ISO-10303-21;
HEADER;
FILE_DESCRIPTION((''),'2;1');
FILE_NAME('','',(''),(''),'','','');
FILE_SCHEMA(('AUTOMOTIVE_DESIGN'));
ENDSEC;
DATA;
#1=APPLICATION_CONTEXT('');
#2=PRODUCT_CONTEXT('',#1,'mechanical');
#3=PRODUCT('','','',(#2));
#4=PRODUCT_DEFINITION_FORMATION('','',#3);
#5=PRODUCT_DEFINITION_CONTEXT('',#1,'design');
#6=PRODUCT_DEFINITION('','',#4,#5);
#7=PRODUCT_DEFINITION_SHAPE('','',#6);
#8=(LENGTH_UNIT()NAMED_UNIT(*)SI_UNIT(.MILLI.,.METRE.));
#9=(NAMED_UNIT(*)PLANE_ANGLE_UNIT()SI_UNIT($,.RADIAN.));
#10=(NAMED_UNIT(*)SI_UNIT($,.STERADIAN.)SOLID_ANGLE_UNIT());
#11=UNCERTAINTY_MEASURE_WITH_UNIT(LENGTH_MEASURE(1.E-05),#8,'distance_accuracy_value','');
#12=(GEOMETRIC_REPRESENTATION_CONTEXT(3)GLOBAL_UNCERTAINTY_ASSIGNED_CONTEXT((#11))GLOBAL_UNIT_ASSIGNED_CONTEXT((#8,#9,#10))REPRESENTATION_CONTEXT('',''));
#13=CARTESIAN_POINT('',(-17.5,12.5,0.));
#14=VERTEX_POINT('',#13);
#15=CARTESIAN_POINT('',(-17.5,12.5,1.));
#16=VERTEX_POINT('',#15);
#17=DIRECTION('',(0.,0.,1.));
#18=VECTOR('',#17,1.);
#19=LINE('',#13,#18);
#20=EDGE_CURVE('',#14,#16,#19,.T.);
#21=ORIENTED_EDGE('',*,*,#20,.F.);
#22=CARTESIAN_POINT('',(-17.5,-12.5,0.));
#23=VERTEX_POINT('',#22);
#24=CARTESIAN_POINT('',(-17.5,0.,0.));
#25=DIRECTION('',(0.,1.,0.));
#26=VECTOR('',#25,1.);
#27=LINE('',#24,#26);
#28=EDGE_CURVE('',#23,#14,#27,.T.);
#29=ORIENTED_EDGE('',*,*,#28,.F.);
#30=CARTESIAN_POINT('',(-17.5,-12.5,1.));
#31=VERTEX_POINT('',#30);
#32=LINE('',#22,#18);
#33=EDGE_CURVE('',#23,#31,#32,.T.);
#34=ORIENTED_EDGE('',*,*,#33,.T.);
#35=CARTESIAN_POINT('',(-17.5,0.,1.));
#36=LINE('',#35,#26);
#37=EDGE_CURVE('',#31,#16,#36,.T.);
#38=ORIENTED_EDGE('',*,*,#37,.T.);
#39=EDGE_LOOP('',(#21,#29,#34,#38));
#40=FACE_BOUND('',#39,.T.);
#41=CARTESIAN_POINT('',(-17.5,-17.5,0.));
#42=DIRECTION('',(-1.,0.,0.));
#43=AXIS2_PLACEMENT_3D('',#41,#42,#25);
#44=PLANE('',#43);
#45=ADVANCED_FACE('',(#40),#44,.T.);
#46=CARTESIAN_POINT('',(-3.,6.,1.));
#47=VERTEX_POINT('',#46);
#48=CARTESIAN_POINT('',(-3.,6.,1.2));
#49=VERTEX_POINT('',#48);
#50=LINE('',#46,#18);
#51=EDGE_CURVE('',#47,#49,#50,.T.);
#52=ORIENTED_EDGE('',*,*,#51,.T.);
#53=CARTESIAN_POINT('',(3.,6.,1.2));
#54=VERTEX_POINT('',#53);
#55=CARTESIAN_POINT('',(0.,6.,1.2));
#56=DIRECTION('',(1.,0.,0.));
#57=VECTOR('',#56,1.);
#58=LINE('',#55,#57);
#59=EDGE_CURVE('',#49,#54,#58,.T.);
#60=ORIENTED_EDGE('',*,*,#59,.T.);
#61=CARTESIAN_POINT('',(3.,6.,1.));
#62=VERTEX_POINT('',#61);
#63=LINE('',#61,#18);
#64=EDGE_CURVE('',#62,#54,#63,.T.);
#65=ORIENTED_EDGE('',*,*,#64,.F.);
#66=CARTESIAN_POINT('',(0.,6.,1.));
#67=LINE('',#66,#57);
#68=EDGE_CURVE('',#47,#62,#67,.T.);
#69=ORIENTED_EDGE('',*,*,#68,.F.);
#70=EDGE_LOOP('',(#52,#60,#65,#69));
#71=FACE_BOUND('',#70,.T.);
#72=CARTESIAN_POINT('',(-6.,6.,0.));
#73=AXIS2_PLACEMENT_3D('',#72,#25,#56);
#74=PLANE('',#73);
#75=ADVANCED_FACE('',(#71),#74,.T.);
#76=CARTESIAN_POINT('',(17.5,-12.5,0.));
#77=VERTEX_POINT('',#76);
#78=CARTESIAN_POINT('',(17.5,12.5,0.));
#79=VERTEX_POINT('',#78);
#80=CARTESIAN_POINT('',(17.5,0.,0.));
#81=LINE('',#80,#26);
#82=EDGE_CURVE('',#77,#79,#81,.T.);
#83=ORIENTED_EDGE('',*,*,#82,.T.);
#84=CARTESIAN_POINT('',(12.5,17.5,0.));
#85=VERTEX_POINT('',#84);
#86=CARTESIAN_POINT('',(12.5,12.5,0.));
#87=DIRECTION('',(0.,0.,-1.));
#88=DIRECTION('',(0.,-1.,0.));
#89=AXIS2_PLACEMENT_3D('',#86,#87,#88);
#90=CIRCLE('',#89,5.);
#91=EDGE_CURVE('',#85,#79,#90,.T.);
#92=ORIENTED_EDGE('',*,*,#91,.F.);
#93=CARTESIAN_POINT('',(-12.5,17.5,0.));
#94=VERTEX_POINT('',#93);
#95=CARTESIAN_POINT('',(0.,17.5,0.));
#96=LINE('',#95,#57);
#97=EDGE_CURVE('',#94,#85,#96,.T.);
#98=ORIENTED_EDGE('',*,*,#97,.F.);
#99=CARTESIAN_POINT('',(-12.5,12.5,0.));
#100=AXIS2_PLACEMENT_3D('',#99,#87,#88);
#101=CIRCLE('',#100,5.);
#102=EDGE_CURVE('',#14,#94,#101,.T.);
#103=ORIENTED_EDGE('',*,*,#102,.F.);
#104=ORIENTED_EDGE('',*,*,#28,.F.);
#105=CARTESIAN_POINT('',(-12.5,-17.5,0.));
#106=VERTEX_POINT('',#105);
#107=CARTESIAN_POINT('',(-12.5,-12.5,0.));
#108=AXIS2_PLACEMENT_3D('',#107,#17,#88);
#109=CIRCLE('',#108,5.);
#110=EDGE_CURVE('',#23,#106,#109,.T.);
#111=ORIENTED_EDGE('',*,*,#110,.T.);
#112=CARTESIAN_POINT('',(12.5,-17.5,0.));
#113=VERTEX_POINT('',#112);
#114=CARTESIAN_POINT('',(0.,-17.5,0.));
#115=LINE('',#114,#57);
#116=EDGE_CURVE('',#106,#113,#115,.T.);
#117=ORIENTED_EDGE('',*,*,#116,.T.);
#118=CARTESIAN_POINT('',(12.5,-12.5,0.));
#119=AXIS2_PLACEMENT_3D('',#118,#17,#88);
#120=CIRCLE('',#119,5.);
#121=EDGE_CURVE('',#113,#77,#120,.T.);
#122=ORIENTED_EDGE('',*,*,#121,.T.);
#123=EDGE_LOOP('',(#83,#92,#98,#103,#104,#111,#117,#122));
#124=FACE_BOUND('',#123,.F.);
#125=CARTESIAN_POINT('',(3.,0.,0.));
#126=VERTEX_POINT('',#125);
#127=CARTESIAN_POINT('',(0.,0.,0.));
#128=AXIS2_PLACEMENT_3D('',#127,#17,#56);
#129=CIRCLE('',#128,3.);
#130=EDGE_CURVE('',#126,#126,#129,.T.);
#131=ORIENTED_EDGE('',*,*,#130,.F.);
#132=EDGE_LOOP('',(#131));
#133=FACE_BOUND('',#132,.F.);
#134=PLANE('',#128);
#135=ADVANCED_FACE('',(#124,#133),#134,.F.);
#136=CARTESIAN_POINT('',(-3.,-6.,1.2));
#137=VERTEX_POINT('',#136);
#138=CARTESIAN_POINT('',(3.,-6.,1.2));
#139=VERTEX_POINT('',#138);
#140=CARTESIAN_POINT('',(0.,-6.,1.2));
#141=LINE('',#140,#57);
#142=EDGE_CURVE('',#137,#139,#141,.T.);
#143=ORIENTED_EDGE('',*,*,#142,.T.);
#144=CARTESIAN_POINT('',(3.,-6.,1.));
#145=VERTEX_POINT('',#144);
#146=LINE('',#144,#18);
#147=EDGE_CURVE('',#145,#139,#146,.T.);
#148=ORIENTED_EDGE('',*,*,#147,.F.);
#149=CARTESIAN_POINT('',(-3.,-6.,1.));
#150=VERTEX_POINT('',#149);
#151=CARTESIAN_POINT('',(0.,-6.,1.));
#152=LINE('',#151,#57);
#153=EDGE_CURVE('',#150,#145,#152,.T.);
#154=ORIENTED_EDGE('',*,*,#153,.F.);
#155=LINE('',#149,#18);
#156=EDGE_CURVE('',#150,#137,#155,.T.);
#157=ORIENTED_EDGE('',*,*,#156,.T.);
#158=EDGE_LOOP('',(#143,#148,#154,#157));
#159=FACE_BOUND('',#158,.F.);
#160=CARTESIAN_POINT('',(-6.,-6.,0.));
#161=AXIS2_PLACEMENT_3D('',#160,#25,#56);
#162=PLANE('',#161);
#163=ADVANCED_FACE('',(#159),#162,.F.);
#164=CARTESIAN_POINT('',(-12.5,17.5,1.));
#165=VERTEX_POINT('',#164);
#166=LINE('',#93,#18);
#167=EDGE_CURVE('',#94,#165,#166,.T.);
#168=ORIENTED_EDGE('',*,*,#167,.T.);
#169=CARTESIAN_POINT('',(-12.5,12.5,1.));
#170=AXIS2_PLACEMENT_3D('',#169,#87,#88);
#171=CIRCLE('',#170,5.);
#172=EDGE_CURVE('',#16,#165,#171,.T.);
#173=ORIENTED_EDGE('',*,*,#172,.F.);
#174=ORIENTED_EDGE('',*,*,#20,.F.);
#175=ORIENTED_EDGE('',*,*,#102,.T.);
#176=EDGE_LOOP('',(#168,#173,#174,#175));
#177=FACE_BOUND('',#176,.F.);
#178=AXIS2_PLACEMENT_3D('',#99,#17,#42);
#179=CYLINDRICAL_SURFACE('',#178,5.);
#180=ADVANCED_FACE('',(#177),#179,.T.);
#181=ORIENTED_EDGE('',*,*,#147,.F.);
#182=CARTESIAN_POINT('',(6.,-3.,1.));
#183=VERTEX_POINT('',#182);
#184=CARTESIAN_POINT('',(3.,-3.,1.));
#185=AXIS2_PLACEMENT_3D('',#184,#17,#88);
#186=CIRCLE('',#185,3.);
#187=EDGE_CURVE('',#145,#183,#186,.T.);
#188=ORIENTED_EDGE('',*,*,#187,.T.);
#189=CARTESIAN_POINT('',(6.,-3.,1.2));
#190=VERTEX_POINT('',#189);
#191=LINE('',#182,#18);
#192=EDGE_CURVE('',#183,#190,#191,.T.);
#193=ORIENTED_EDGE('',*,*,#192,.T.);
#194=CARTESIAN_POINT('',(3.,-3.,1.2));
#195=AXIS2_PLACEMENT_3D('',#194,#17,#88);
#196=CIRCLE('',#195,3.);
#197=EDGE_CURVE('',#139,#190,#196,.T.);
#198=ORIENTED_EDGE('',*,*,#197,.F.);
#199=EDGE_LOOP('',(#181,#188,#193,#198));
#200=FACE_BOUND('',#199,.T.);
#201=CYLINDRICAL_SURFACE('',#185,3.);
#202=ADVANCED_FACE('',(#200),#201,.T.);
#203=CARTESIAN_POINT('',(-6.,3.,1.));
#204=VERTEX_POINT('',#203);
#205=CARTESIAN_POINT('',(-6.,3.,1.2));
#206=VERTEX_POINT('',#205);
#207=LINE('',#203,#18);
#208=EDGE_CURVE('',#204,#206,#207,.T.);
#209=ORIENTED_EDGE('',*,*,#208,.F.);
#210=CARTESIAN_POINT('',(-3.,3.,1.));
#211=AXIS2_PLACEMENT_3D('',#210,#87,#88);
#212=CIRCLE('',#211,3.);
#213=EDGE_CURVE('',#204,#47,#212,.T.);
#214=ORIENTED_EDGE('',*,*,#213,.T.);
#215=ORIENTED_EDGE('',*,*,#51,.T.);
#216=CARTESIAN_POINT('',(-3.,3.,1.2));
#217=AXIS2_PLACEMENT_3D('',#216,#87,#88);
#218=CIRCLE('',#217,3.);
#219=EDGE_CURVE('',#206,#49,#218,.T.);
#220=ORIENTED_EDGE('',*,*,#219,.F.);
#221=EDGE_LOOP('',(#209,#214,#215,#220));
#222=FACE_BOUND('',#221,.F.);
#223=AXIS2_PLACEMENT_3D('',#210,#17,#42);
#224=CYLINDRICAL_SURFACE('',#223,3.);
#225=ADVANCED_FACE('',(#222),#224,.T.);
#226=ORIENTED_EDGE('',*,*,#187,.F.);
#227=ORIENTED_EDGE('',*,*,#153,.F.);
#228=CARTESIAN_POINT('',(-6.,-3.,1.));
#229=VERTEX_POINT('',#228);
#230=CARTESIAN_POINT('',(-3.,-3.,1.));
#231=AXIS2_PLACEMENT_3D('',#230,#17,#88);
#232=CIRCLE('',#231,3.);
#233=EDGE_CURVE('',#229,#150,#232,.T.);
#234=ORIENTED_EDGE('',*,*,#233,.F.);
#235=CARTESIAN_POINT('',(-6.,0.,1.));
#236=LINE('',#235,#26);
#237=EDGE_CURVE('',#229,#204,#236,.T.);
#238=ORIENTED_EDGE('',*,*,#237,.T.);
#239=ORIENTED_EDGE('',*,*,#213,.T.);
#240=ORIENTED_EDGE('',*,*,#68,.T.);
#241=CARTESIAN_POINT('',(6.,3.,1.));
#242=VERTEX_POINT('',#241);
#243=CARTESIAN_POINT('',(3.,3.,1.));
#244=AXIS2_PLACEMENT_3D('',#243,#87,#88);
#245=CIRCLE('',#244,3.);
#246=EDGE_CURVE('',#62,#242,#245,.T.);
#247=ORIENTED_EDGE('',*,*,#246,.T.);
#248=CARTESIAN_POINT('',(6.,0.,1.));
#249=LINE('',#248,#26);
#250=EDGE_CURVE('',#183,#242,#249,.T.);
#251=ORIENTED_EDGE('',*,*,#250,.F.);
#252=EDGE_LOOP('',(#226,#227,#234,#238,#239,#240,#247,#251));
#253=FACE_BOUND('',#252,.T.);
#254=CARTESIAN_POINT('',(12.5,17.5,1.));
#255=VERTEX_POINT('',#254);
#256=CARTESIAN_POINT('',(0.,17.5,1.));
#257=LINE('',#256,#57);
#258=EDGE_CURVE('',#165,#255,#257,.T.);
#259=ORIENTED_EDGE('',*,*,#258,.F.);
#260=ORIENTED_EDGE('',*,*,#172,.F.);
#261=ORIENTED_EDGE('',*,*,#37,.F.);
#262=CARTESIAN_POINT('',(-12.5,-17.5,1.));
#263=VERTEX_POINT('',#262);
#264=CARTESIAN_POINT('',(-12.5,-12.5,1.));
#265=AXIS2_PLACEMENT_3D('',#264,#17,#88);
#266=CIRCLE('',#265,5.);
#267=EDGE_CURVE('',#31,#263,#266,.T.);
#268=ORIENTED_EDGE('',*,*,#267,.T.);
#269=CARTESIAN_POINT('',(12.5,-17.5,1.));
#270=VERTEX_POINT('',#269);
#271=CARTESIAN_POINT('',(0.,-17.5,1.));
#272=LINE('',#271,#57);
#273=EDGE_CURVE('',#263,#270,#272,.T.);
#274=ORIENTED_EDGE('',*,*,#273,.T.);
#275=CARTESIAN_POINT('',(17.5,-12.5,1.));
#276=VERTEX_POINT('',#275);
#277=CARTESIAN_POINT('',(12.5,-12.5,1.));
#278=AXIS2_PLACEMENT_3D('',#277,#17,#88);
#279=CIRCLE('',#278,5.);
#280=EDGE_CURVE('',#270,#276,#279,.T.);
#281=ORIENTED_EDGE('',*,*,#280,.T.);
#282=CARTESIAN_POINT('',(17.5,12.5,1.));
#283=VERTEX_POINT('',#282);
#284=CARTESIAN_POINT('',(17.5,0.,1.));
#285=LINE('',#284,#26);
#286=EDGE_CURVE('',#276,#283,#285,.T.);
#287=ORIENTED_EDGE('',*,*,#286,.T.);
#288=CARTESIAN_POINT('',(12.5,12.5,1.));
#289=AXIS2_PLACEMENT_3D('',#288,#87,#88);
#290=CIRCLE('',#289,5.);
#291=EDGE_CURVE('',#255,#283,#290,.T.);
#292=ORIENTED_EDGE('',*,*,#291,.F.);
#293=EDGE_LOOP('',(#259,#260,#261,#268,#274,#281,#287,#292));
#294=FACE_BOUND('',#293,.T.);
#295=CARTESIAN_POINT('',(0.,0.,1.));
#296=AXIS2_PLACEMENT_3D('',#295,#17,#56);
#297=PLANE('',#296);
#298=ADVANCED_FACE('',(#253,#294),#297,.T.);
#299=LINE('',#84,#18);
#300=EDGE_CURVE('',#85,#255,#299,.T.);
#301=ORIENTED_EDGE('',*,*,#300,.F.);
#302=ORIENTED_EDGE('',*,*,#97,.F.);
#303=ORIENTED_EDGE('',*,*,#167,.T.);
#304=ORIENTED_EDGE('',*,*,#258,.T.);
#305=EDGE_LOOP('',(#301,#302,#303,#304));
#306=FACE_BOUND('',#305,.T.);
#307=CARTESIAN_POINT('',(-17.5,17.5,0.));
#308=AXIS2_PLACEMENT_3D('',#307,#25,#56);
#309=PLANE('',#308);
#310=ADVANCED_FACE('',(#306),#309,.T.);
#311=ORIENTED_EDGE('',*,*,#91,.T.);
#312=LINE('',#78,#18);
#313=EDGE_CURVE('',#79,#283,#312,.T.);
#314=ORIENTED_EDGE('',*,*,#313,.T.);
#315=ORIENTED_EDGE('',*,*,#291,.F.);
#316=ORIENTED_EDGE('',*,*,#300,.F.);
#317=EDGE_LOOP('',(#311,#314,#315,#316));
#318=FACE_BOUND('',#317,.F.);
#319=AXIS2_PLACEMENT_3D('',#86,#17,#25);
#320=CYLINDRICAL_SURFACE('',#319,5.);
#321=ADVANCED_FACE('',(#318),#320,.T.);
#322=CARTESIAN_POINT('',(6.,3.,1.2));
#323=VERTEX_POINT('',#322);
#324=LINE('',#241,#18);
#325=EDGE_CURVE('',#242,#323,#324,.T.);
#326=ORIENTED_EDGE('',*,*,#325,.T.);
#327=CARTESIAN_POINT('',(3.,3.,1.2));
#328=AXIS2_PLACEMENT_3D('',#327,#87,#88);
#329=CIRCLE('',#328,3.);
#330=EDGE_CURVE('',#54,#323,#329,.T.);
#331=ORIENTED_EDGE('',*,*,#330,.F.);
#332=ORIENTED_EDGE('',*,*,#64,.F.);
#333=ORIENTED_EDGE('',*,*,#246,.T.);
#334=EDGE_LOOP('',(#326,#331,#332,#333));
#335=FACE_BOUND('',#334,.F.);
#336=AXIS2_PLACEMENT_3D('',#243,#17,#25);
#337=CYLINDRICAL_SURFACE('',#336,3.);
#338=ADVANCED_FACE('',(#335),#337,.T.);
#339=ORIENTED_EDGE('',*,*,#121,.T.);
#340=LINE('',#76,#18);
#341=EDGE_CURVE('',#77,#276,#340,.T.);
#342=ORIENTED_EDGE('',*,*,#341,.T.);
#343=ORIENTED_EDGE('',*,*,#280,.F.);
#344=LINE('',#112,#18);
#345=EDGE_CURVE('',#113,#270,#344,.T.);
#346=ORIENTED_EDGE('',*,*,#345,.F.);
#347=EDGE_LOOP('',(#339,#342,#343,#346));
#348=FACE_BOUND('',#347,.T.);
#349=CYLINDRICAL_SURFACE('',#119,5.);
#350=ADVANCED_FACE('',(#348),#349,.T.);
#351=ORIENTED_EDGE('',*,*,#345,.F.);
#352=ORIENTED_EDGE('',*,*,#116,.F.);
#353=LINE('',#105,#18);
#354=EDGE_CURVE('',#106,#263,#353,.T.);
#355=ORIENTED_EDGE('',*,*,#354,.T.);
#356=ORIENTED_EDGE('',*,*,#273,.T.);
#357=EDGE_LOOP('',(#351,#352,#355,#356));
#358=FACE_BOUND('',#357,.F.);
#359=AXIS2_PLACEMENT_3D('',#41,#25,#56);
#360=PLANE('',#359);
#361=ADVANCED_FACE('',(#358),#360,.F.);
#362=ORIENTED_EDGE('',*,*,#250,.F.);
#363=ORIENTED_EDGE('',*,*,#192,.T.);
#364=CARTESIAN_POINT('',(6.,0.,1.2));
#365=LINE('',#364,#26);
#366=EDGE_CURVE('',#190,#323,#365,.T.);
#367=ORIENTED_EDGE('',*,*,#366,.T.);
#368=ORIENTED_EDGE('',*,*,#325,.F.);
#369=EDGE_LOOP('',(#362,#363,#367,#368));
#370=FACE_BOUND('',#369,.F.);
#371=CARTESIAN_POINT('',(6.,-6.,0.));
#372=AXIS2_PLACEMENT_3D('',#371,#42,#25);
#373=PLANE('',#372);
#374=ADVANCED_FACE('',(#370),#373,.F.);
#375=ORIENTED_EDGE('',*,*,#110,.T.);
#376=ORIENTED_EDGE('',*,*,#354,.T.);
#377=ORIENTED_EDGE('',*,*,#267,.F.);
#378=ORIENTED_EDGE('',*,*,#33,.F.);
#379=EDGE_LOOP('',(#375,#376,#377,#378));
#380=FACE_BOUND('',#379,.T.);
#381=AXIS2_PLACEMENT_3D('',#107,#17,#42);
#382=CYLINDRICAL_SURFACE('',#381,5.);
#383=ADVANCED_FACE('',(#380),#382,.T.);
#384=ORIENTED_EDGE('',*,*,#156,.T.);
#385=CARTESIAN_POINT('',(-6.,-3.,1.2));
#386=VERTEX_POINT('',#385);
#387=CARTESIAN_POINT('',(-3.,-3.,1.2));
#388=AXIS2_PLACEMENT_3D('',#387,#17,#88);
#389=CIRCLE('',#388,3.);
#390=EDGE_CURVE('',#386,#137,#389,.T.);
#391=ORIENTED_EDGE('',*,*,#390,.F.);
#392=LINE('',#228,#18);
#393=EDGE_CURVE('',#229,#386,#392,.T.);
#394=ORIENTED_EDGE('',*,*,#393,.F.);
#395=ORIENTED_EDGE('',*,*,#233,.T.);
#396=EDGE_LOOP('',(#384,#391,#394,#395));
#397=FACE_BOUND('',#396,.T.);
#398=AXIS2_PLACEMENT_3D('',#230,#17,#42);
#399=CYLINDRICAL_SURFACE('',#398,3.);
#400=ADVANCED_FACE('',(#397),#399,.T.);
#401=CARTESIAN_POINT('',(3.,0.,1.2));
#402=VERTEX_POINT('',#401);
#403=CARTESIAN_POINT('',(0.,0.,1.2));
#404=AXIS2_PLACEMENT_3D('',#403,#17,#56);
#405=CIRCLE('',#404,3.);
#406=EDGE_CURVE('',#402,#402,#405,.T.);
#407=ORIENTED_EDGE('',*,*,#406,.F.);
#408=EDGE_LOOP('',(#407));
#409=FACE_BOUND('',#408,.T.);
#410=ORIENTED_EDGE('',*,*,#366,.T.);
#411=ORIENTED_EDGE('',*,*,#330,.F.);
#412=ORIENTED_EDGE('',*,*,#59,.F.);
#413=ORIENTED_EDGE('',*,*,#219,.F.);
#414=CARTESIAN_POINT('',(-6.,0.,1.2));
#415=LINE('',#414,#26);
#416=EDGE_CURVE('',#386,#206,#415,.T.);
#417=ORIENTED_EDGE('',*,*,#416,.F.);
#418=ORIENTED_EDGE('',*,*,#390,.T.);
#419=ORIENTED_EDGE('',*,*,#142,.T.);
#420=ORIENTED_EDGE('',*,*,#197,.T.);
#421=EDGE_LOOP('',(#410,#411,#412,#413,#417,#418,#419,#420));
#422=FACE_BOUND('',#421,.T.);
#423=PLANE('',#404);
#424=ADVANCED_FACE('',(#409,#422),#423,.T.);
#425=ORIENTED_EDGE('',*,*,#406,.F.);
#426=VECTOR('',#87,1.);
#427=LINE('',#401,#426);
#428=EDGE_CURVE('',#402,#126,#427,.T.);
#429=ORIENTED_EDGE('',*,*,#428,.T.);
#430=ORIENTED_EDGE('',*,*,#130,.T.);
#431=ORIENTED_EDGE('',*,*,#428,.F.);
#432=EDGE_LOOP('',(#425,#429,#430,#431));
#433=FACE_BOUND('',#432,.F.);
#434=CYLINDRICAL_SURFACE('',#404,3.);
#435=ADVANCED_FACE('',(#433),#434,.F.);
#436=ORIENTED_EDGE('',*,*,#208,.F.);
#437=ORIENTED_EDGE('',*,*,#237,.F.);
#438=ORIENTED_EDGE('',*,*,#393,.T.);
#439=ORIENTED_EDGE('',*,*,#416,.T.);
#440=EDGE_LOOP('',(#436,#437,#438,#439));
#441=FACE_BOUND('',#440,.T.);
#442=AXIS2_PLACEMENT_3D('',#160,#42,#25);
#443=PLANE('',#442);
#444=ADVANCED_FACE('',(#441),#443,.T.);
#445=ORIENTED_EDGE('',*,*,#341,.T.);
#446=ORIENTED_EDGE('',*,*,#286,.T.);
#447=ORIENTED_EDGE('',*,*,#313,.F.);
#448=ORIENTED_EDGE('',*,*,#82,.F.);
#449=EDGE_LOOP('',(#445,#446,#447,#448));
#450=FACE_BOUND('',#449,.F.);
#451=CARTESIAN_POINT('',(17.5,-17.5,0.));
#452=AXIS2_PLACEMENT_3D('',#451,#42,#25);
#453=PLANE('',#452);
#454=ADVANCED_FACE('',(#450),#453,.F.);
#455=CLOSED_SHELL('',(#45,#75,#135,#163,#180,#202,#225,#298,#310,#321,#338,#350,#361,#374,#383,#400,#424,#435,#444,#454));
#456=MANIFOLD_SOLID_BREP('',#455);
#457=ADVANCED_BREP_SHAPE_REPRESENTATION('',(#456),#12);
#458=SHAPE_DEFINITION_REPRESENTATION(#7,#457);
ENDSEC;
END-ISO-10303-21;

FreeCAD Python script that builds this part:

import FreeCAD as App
import Part
import Sketcher


def edges_at(feature, points):
    """Names of the edges that pass closest to the given points."""
    edges = feature.Shape.Edges
    near = lambda p: min(range(len(edges)), key=lambda i: edges[i].distToShape(Part.Vertex(*p))[0])
    return sorted({f"Edge{near(p) + 1}" for p in points})

doc = App.newDocument("Part")
body = doc.addObject("PartDesign::Body", "Body")

# Sketch on XY plane
sketch1 = body.newObject("Sketcher::SketchObject", "Sketch")
sketch1.AttachmentSupport = (doc.getObject("XY_Plane"), [""])
sketch1.MapMode = "FlatFace"
sketch1.addGeometry(Part.LineSegment(App.Vector(-18, 18, 0), App.Vector(-18, -18, 0)), False)
sketch1.addGeometry(Part.LineSegment(App.Vector(-18, -18, 0), App.Vector(18, -18, 0)), False)
sketch1.addGeometry(Part.LineSegment(App.Vector(18, -18, 0), App.Vector(18, 18, 0)), False)
sketch1.addGeometry(Part.LineSegment(App.Vector(18, 18, 0), App.Vector(-18, 18, 0)), False)
sketch1.addGeometry(Part.LineSegment(App.Vector(6, -6, 0), App.Vector(-6, -6, 0)), False)
sketch1.addGeometry(Part.LineSegment(App.Vector(-6, -6, 0), App.Vector(-6, 6, 0)), False)
sketch1.addGeometry(Part.LineSegment(App.Vector(-6, 6, 0), App.Vector(6, 6, 0)), False)
sketch1.addGeometry(Part.LineSegment(App.Vector(6, 6, 0), App.Vector(6, -6, 0)), False)
sketch1.addConstraint(Sketcher.Constraint("Coincident", 0, 2, 1, 1))
sketch1.addConstraint(Sketcher.Constraint("Coincident", 1, 2, 2, 1))
sketch1.addConstraint(Sketcher.Constraint("Coincident", 2, 2, 3, 1))
sketch1.addConstraint(Sketcher.Constraint("Coincident", 3, 2, 0, 1))
sketch1.addConstraint(Sketcher.Constraint("Coincident", 4, 2, 5, 1))
sketch1.addConstraint(Sketcher.Constraint("Coincident", 5, 2, 6, 1))
sketch1.addConstraint(Sketcher.Constraint("Coincident", 6, 2, 7, 1))
sketch1.addConstraint(Sketcher.Constraint("Coincident", 7, 2, 4, 1))
sketch1.addConstraint(Sketcher.Constraint("Vertical", 0))
sketch1.addConstraint(Sketcher.Constraint("Horizontal", 1))
sketch1.addConstraint(Sketcher.Constraint("Vertical", 2))
sketch1.addConstraint(Sketcher.Constraint("Horizontal", 3))
sketch1.addConstraint(Sketcher.Constraint("Horizontal", 4))
sketch1.addConstraint(Sketcher.Constraint("Vertical", 5))
sketch1.addConstraint(Sketcher.Constraint("Horizontal", 6))
sketch1.addConstraint(Sketcher.Constraint("Vertical", 7))
sketch1.addConstraint(Sketcher.Constraint("Symmetric", 0, 2, 2, 2, -1, 1))
sketch1.addConstraint(Sketcher.Constraint("Symmetric", 4, 2, 6, 2, -1, 1))
sketch1.addConstraint(Sketcher.Constraint("Equal", 3, 0))
sketch1.addConstraint(Sketcher.Constraint("Equal", 6, 5))
sketch1.addConstraint(Sketcher.Constraint("DistanceX", 1, 1, 1, 2, 35.0))
sketch1.addConstraint(Sketcher.Constraint("DistanceX", 4, 2, 4, 1, 12.0))
pad1 = body.newObject("PartDesign::Pad", "Pad")
pad1.Profile = sketch1
pad1.Length = 1

# Sketch on XY plane
sketch2 = body.newObject("Sketcher::SketchObject", "Sketch001")
sketch2.AttachmentSupport = (doc.getObject("XY_Plane"), [""])
sketch2.MapMode = "FlatFace"
sketch2.addGeometry(Part.LineSegment(App.Vector(-6, 6, 0), App.Vector(-6, -6, 0)), False)
sketch2.addGeometry(Part.LineSegment(App.Vector(-6, -6, 0), App.Vector(6, -6, 0)), False)
sketch2.addGeometry(Part.LineSegment(App.Vector(6, -6, 0), App.Vector(6, 6, 0)), False)
sketch2.addGeometry(Part.LineSegment(App.Vector(6, 6, 0), App.Vector(-6, 6, 0)), False)
sketch2.addConstraint(Sketcher.Constraint("Coincident", 0, 2, 1, 1))
sketch2.addConstraint(Sketcher.Constraint("Coincident", 1, 2, 2, 1))
sketch2.addConstraint(Sketcher.Constraint("Coincident", 2, 2, 3, 1))
sketch2.addConstraint(Sketcher.Constraint("Coincident", 3, 2, 0, 1))
sketch2.addConstraint(Sketcher.Constraint("Vertical", 0))
sketch2.addConstraint(Sketcher.Constraint("Horizontal", 1))
sketch2.addConstraint(Sketcher.Constraint("Vertical", 2))
sketch2.addConstraint(Sketcher.Constraint("Horizontal", 3))
sketch2.addConstraint(Sketcher.Constraint("Symmetric", 0, 2, 2, 2, -1, 1))
sketch2.addConstraint(Sketcher.Constraint("Equal", 3, 0))
sketch2.addConstraint(Sketcher.Constraint("DistanceX", 1, 1, 1, 2, 12.0))
pad2 = body.newObject("PartDesign::Pad", "Pad001")
pad2.Profile = sketch2
pad2.Length = 1.2
doc.recompute()

fillet = body.newObject("PartDesign::Fillet", "Fillet")
fillet.Base = (pad2, edges_at(pad2, [
    (-6, -6, 1.1),
    (6, -6, 1.1),
    (6, 6, 1.1),
    (-6, 6, 1.1),
]))
fillet.Radius = 3
doc.recompute()

fillet2 = body.newObject("PartDesign::Fillet", "Fillet001")
fillet2.Base = (fillet, edges_at(fillet, [
    (-17.5, -17.5, 0.5),
    (17.5, -17.5, 0.5),
    (17.5, 17.5, 0.5),
    (-17.5, 17.5, 0.5),
]))
fillet2.Radius = 5

# Sketch on XY plane
sketch3 = body.newObject("Sketcher::SketchObject", "Sketch002")
sketch3.AttachmentSupport = (doc.getObject("XY_Plane"), [""])
sketch3.MapMode = "FlatFace"
sketch3.AttachmentOffset = App.Placement(App.Vector(0, 0, 1.2), App.Rotation())
sketch3.addGeometry(Part.Circle(App.Vector(0, 0, 0), App.Vector(0, 0, 1), 3), False)
sketch3.addConstraint(Sketcher.Constraint("Coincident", 0, 3, -1, 1))
sketch3.addConstraint(Sketcher.Constraint("Diameter", 0, 6.0))
pocket1 = body.newObject("PartDesign::Pocket", "Pocket")
pocket1.Profile = sketch3
pocket1.Length = 25

doc.recompute()
